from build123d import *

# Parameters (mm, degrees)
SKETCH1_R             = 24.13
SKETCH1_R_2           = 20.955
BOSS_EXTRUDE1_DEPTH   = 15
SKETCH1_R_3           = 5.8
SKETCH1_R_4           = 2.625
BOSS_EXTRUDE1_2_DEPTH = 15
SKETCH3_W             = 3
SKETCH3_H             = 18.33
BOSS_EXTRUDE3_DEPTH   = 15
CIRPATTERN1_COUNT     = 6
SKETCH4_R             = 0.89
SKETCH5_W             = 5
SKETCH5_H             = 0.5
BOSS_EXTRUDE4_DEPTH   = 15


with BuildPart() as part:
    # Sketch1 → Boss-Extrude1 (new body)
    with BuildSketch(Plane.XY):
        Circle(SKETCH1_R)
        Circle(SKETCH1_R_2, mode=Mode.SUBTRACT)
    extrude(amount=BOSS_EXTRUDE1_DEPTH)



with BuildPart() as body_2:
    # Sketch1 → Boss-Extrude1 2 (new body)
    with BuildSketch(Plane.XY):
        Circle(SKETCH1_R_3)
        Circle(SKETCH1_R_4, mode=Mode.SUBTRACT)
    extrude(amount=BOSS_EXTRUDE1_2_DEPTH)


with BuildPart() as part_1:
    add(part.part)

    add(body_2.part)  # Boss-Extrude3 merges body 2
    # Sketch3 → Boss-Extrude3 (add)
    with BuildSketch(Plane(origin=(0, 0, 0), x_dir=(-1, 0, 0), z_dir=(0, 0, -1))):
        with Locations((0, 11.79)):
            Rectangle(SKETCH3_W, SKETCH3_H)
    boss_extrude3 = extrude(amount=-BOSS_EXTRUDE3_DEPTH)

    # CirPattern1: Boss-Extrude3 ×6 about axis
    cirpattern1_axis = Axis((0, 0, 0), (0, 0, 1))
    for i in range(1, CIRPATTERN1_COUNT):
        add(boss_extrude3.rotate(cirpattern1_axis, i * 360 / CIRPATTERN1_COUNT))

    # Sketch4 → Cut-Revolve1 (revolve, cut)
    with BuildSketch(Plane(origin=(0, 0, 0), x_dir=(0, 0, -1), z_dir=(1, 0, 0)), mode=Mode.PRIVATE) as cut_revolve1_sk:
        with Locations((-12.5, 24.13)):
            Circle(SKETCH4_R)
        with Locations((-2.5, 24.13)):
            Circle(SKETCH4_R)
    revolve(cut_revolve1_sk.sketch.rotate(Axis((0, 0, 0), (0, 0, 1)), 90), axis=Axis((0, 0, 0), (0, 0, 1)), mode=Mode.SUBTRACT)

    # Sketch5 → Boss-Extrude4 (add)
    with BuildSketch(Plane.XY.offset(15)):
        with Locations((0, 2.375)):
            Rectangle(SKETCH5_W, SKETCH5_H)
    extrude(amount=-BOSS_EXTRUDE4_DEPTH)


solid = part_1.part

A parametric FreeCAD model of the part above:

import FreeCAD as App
import Part
import Sketcher
from FreeCAD import Vector
Q = App.Units.Quantity


def add_polygon(sketch, points):
    """Adds a closed chain of lines whose ends are joined by coincident constraints."""
    first, n = sketch.GeometryCount, len(points)
    for a, b in zip(points, points[1:] + points[:1]):
        sketch.addGeometry(Part.LineSegment(App.Vector(*a, 0), App.Vector(*b, 0)), False)
    for i in range(n):
        sketch.addConstraint(Sketcher.Constraint("Coincident", first + i, 2, first + (i + 1) % n, 1))

doc = App.newDocument("Part")
body = doc.addObject("PartDesign::Body", "Body")

sketch1 = body.newObject("Sketcher::SketchObject", "Sketch")
sketch1.AttachmentSupport = (doc.getObject("XY_Plane"), [""])
sketch1.MapMode = "FlatFace"
sketch1.addGeometry([
    Part.Circle(Vector(0, 0, 0), Vector(0, 0, 1), 24),
    Part.Circle(Vector(0, 0, 0), Vector(0, 0, 1), 21),
], False)
sketch1.addConstraint([
    Sketcher.Constraint("Coincident", 0, 3, -1, 1),
    Sketcher.Constraint("Coincident", 1, 3, -1, 1),
    Sketcher.Constraint("Diameter", 0, Q("48.26 mm")),
    Sketcher.Constraint("Diameter", 1, Q("41.91 mm")),
])
pad1 = body.newObject("PartDesign::Pad", "Pad")
pad1.Profile = sketch1
pad1.Length = 15
body2 = doc.addObject("PartDesign::Body", "Body001")

sketch2 = body2.newObject("Sketcher::SketchObject", "Sketch001")
sketch2.AttachmentSupport = (doc.getObject("XY_Plane001"), [""])
sketch2.MapMode = "FlatFace"
sketch2.addGeometry([
    Part.Circle(Vector(0, 0, 0), Vector(0, 0, 1), 5.8),
    Part.Circle(Vector(0, 0, 0), Vector(0, 0, 1), 2.6),
], False)
sketch2.addConstraint([
    Sketcher.Constraint("Coincident", 0, 3, -1, 1),
    Sketcher.Constraint("Coincident", 1, 3, -1, 1),
    Sketcher.Constraint("Diameter", 0, Q("11.6 mm")),
    Sketcher.Constraint("Diameter", 1, Q("5.25 mm")),
])
pad2 = body2.newObject("PartDesign::Pad", "Pad001")
pad2.Profile = sketch2
pad2.Length = 15
body.AllowCompound = True
doc.recompute()

boolean = body.newObject("PartDesign::Boolean", "Boolean")
boolean.Type = "Fuse"
boolean.addObjects([body2])

sketch3 = body.newObject("Sketcher::SketchObject", "Sketch002")
sketch3.AttachmentSupport = (doc.getObject("XY_Plane"), [""])
sketch3.MapMode = "FlatFace"
add_polygon(sketch3, [(1.5, 21), (1.5, 2.6), (-1.5, 2.6), (-1.5, 21)])
sketch3.addConstraint([
    Sketcher.Constraint("Vertical", 0),
    Sketcher.Constraint("Horizontal", 1),
    Sketcher.Constraint("Vertical", 2),
    Sketcher.Constraint("Horizontal", 3),
    Sketcher.Constraint("DistanceX", 1, 2, 1, 1, Q("3 mm")),
    Sketcher.Constraint("DistanceY", 0, 2, 0, 1, Q("18.33 mm")),
    Sketcher.Constraint("DistanceX", -1, 1, 0, 2, Q("1.5 mm")),
    Sketcher.Constraint("DistanceY", -1, 1, 0, 2, Q("2.625 mm")),
])
pad3 = body.newObject("PartDesign::Pad", "Pad002")
pad3.Profile = sketch3
pad3.Length = 15
doc.recompute()

polarpattern = body.newObject("PartDesign::PolarPattern", "PolarPattern")
polarpattern.Originals = [pad3]
polarpattern.Axis = (doc.getObject("Z_Axis"), [""])
polarpattern.Angle = 360
polarpattern.Occurrences = 6
body.Tip = polarpattern

sketch4 = body.newObject("Sketcher::SketchObject", "Sketch003")
sketch4.AttachmentSupport = (doc.getObject("YZ_Plane"), [""])
sketch4.MapMode = "FlatFace"
sketch4.addGeometry([
    Part.Circle(Vector(24.1, 12.5, 0), Vector(0, 0, 1), 0.9),
    Part.Circle(Vector(24.1, 2.5, 0), Vector(0, 0, 1), 0.9),
], False)
sketch4.addConstraint([
    Sketcher.Constraint("Equal", 0, 1),
    Sketcher.Constraint("Vertical", 0, 3, 1, 3),
    Sketcher.Constraint("Diameter", 0, Q("1.78 mm")),
    Sketcher.Constraint("DistanceY", 1, 3, 0, 3, Q("10 mm")),
    Sketcher.Constraint("DistanceY", -1, 1, 0, 3, Q("12.5 mm")),
    Sketcher.Constraint("DistanceX", -1, 1, 0, 3, Q("24.13 mm")),
])
groove = body.newObject("PartDesign::Groove", "Groove")
groove.Profile = sketch4
groove.ReferenceAxis = (sketch4, ["V_Axis"])
groove.Angle = 360

sketch5 = body.newObject("Sketcher::SketchObject", "Sketch004")
sketch5.AttachmentSupport = (doc.getObject("XY_Plane"), [""])
sketch5.MapMode = "FlatFace"
sketch5.AttachmentOffset = App.Placement(Vector(0, 0, 15), App.Rotation())
add_polygon(sketch5, [(-2.5, 2.6), (-2.5, 2.1), (2.5, 2.1), (2.5, 2.6)])
sketch5.addConstraint([
    Sketcher.Constraint("Vertical", 0),
    Sketcher.Constraint("Horizontal", 1),
    Sketcher.Constraint("Vertical", 2),
    Sketcher.Constraint("Horizontal", 3),
    Sketcher.Constraint("DistanceX", 1, 1, 1, 2, Q("5 mm")),
    Sketcher.Constraint("DistanceY", 0, 2, 0, 1, Q("0.5 mm")),
    Sketcher.Constraint("DistanceX", 0, 2, -1, 1, Q("2.5 mm")),
    Sketcher.Constraint("DistanceY", -1, 1, 0, 2, Q("2.125 mm")),
])
pad4 = body.newObject("PartDesign::Pad", "Pad003")
pad4.Profile = sketch5
pad4.Length = 15
pad4.Reversed = True

doc.recompute()
